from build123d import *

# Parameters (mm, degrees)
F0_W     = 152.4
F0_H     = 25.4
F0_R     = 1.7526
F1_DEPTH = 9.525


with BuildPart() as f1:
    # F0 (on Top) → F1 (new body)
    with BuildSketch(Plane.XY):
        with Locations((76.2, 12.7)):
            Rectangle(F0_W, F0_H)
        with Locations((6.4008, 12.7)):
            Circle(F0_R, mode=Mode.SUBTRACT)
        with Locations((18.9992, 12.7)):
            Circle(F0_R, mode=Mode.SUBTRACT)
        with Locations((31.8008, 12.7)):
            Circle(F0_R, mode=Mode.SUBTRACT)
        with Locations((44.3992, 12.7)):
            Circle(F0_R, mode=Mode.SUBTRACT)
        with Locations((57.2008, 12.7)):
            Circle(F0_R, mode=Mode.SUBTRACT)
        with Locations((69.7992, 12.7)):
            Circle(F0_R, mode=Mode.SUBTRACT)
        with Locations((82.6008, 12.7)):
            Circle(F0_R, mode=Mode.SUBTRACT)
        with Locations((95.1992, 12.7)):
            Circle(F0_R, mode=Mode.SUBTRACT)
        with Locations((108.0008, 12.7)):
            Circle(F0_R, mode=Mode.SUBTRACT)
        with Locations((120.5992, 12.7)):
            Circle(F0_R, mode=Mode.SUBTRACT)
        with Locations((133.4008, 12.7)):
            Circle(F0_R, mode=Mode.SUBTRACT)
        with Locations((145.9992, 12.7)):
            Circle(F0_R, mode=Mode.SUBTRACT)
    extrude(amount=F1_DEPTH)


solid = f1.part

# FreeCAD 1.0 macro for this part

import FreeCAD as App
import Part
import Sketcher

V = App.Vector
Q = App.Units.Quantity


def add_polygon(sketch, points):
    """Adds a closed chain of lines whose ends are joined by coincident constraints."""
    first, n = sketch.GeometryCount, len(points)
    for a, b in zip(points, points[1:] + points[:1]):
        sketch.addGeometry(Part.LineSegment(App.Vector(*a, 0), App.Vector(*b, 0)), False)
    for i in range(n):
        sketch.addConstraint(Sketcher.Constraint("Coincident", first + i, 2, first + (i + 1) % n, 1))

doc = App.newDocument("Part")
body = doc.addObject("PartDesign::Body", "Body")

# Sketch on XY plane
sketch1 = body.newObject("Sketcher::SketchObject", "Sketch")
sketch1.AttachmentSupport = (doc.getObject("XY_Plane"), [""])
sketch1.MapMode = "FlatFace"
add_polygon(sketch1, [(0, 25.4), (0, 0), (152.4, 0), (152.4, 25.4)])  # lines 0-3
sketch1.addGeometry(Part.Circle(V(6.4008, 12.7, 0), V(0, 0, 1), 1.7526), False)  # 4
sketch1.addGeometry(Part.Circle(V(18.9992, 12.7, 0), V(0, 0, 1), 1.7526), False)  # 5
sketch1.addGeometry(Part.Circle(V(31.8008, 12.7, 0), V(0, 0, 1), 1.7526), False)  # 6
sketch1.addGeometry(Part.Circle(V(44.3992, 12.7, 0), V(0, 0, 1), 1.7526), False)  # 7
sketch1.addGeometry(Part.Circle(V(57.2008, 12.7, 0), V(0, 0, 1), 1.7526), False)  # 8
sketch1.addGeometry(Part.Circle(V(69.7992, 12.7, 0), V(0, 0, 1), 1.7526), False)  # 9
sketch1.addGeometry(Part.Circle(V(82.6008, 12.7, 0), V(0, 0, 1), 1.7526), False)  # 10
sketch1.addGeometry(Part.Circle(V(95.1992, 12.7, 0), V(0, 0, 1), 1.7526), False)  # 11
sketch1.addGeometry(Part.Circle(V(108.0008, 12.7, 0), V(0, 0, 1), 1.7526), False)  # 12
sketch1.addGeometry(Part.Circle(V(120.5992, 12.7, 0), V(0, 0, 1), 1.7526), False)  # 13
sketch1.addGeometry(Part.Circle(V(133.4008, 12.7, 0), V(0, 0, 1), 1.7526), False)  # 14
sketch1.addGeometry(Part.Circle(V(145.9992, 12.7, 0), V(0, 0, 1), 1.7526), False)  # 15
sketch1.addConstraint(Sketcher.Constraint("Vertical", 0))
sketch1.addConstraint(Sketcher.Constraint("Horizontal", 1))
sketch1.addConstraint(Sketcher.Constraint("Vertical", 2))
sketch1.addConstraint(Sketcher.Constraint("Horizontal", 3))
sketch1.addConstraint(Sketcher.Constraint("Coincident", 0, 2, -1, 1))
sketch1.addConstraint(Sketcher.Constraint("Equal", 4, 5))
sketch1.addConstraint(Sketcher.Constraint("Equal", 5, 6))
sketch1.addConstraint(Sketcher.Constraint("Equal", 6, 7))
sketch1.addConstraint(Sketcher.Constraint("Equal", 7, 8))
sketch1.addConstraint(Sketcher.Constraint("Equal", 8, 9))
sketch1.addConstraint(Sketcher.Constraint("Equal", 9, 10))
sketch1.addConstraint(Sketcher.Constraint("Equal", 10, 11))
sketch1.addConstraint(Sketcher.Constraint("Equal", 11, 12))
sketch1.addConstraint(Sketcher.Constraint("Equal", 12, 13))
sketch1.addConstraint(Sketcher.Constraint("Equal", 13, 14))
sketch1.addConstraint(Sketcher.Constraint("Equal", 14, 15))
sketch1.addConstraint(Sketcher.Constraint("Horizontal", 4, 3, 5, 3))
sketch1.addConstraint(Sketcher.Constraint("Horizontal", 5, 3, 6, 3))
sketch1.addConstraint(Sketcher.Constraint("Horizontal", 6, 3, 7, 3))
sketch1.addConstraint(Sketcher.Constraint("Horizontal", 7, 3, 8, 3))
sketch1.addConstraint(Sketcher.Constraint("Horizontal", 8, 3, 9, 3))
sketch1.addConstraint(Sketcher.Constraint("Horizontal", 9, 3, 10, 3))
sketch1.addConstraint(Sketcher.Constraint("Horizontal", 10, 3, 11, 3))
sketch1.addConstraint(Sketcher.Constraint("Horizontal", 11, 3, 12, 3))
sketch1.addConstraint(Sketcher.Constraint("Horizontal", 12, 3, 13, 3))
sketch1.addConstraint(Sketcher.Constraint("Horizontal", 13, 3, 14, 3))
sketch1.addConstraint(Sketcher.Constraint("Horizontal", 14, 3, 15, 3))
sketch1.addConstraint(Sketcher.Constraint("DistanceX", 1, 1, 1, 2, Q("6 in")))
sketch1.addConstraint(Sketcher.Constraint("DistanceY", 0, 2, 0, 1, Q("1 in")))
sketch1.addConstraint(Sketcher.Constraint("Diameter", 4, Q("0.138 in")))
sketch1.addConstraint(Sketcher.Constraint("DistanceX", 4, 3, 6, 3, Q("1 in")))
sketch1.addConstraint(Sketcher.Constraint("DistanceX", 5, 3, 7, 3, Q("1 in")))
sketch1.addConstraint(Sketcher.Constraint("DistanceX", 6, 3, 8, 3, Q("1 in")))
sketch1.addConstraint(Sketcher.Constraint("DistanceX", 7, 3, 9, 3, Q("1 in")))
sketch1.addConstraint(Sketcher.Constraint("DistanceX", 8, 3, 10, 3, Q("1 in")))
sketch1.addConstraint(Sketcher.Constraint("DistanceX", 9, 3, 11, 3, Q("1 in")))
sketch1.addConstraint(Sketcher.Constraint("DistanceX", 10, 3, 12, 3, Q("1 in")))
sketch1.addConstraint(Sketcher.Constraint("DistanceX", 11, 3, 13, 3, Q("1 in")))
sketch1.addConstraint(Sketcher.Constraint("DistanceX", 12, 3, 14, 3, Q("1 in")))
sketch1.addConstraint(Sketcher.Constraint("DistanceX", 13, 3, 15, 3, Q("1 in")))
sketch1.addConstraint(Sketcher.Constraint("DistanceY", -1, 1, 4, 3, Q("0.5 in")))
sketch1.addConstraint(Sketcher.Constraint("DistanceX", -1, 1, 4, 3, Q("0.252 in")))
sketch1.addConstraint(Sketcher.Constraint("DistanceX", -1, 1, 5, 3, Q("0.748 in")))
pad1 = body.newObject("PartDesign::Pad", "Pad")
pad1.Profile = sketch1
pad1.Length = Q("0.375 in")

doc.recompute()
